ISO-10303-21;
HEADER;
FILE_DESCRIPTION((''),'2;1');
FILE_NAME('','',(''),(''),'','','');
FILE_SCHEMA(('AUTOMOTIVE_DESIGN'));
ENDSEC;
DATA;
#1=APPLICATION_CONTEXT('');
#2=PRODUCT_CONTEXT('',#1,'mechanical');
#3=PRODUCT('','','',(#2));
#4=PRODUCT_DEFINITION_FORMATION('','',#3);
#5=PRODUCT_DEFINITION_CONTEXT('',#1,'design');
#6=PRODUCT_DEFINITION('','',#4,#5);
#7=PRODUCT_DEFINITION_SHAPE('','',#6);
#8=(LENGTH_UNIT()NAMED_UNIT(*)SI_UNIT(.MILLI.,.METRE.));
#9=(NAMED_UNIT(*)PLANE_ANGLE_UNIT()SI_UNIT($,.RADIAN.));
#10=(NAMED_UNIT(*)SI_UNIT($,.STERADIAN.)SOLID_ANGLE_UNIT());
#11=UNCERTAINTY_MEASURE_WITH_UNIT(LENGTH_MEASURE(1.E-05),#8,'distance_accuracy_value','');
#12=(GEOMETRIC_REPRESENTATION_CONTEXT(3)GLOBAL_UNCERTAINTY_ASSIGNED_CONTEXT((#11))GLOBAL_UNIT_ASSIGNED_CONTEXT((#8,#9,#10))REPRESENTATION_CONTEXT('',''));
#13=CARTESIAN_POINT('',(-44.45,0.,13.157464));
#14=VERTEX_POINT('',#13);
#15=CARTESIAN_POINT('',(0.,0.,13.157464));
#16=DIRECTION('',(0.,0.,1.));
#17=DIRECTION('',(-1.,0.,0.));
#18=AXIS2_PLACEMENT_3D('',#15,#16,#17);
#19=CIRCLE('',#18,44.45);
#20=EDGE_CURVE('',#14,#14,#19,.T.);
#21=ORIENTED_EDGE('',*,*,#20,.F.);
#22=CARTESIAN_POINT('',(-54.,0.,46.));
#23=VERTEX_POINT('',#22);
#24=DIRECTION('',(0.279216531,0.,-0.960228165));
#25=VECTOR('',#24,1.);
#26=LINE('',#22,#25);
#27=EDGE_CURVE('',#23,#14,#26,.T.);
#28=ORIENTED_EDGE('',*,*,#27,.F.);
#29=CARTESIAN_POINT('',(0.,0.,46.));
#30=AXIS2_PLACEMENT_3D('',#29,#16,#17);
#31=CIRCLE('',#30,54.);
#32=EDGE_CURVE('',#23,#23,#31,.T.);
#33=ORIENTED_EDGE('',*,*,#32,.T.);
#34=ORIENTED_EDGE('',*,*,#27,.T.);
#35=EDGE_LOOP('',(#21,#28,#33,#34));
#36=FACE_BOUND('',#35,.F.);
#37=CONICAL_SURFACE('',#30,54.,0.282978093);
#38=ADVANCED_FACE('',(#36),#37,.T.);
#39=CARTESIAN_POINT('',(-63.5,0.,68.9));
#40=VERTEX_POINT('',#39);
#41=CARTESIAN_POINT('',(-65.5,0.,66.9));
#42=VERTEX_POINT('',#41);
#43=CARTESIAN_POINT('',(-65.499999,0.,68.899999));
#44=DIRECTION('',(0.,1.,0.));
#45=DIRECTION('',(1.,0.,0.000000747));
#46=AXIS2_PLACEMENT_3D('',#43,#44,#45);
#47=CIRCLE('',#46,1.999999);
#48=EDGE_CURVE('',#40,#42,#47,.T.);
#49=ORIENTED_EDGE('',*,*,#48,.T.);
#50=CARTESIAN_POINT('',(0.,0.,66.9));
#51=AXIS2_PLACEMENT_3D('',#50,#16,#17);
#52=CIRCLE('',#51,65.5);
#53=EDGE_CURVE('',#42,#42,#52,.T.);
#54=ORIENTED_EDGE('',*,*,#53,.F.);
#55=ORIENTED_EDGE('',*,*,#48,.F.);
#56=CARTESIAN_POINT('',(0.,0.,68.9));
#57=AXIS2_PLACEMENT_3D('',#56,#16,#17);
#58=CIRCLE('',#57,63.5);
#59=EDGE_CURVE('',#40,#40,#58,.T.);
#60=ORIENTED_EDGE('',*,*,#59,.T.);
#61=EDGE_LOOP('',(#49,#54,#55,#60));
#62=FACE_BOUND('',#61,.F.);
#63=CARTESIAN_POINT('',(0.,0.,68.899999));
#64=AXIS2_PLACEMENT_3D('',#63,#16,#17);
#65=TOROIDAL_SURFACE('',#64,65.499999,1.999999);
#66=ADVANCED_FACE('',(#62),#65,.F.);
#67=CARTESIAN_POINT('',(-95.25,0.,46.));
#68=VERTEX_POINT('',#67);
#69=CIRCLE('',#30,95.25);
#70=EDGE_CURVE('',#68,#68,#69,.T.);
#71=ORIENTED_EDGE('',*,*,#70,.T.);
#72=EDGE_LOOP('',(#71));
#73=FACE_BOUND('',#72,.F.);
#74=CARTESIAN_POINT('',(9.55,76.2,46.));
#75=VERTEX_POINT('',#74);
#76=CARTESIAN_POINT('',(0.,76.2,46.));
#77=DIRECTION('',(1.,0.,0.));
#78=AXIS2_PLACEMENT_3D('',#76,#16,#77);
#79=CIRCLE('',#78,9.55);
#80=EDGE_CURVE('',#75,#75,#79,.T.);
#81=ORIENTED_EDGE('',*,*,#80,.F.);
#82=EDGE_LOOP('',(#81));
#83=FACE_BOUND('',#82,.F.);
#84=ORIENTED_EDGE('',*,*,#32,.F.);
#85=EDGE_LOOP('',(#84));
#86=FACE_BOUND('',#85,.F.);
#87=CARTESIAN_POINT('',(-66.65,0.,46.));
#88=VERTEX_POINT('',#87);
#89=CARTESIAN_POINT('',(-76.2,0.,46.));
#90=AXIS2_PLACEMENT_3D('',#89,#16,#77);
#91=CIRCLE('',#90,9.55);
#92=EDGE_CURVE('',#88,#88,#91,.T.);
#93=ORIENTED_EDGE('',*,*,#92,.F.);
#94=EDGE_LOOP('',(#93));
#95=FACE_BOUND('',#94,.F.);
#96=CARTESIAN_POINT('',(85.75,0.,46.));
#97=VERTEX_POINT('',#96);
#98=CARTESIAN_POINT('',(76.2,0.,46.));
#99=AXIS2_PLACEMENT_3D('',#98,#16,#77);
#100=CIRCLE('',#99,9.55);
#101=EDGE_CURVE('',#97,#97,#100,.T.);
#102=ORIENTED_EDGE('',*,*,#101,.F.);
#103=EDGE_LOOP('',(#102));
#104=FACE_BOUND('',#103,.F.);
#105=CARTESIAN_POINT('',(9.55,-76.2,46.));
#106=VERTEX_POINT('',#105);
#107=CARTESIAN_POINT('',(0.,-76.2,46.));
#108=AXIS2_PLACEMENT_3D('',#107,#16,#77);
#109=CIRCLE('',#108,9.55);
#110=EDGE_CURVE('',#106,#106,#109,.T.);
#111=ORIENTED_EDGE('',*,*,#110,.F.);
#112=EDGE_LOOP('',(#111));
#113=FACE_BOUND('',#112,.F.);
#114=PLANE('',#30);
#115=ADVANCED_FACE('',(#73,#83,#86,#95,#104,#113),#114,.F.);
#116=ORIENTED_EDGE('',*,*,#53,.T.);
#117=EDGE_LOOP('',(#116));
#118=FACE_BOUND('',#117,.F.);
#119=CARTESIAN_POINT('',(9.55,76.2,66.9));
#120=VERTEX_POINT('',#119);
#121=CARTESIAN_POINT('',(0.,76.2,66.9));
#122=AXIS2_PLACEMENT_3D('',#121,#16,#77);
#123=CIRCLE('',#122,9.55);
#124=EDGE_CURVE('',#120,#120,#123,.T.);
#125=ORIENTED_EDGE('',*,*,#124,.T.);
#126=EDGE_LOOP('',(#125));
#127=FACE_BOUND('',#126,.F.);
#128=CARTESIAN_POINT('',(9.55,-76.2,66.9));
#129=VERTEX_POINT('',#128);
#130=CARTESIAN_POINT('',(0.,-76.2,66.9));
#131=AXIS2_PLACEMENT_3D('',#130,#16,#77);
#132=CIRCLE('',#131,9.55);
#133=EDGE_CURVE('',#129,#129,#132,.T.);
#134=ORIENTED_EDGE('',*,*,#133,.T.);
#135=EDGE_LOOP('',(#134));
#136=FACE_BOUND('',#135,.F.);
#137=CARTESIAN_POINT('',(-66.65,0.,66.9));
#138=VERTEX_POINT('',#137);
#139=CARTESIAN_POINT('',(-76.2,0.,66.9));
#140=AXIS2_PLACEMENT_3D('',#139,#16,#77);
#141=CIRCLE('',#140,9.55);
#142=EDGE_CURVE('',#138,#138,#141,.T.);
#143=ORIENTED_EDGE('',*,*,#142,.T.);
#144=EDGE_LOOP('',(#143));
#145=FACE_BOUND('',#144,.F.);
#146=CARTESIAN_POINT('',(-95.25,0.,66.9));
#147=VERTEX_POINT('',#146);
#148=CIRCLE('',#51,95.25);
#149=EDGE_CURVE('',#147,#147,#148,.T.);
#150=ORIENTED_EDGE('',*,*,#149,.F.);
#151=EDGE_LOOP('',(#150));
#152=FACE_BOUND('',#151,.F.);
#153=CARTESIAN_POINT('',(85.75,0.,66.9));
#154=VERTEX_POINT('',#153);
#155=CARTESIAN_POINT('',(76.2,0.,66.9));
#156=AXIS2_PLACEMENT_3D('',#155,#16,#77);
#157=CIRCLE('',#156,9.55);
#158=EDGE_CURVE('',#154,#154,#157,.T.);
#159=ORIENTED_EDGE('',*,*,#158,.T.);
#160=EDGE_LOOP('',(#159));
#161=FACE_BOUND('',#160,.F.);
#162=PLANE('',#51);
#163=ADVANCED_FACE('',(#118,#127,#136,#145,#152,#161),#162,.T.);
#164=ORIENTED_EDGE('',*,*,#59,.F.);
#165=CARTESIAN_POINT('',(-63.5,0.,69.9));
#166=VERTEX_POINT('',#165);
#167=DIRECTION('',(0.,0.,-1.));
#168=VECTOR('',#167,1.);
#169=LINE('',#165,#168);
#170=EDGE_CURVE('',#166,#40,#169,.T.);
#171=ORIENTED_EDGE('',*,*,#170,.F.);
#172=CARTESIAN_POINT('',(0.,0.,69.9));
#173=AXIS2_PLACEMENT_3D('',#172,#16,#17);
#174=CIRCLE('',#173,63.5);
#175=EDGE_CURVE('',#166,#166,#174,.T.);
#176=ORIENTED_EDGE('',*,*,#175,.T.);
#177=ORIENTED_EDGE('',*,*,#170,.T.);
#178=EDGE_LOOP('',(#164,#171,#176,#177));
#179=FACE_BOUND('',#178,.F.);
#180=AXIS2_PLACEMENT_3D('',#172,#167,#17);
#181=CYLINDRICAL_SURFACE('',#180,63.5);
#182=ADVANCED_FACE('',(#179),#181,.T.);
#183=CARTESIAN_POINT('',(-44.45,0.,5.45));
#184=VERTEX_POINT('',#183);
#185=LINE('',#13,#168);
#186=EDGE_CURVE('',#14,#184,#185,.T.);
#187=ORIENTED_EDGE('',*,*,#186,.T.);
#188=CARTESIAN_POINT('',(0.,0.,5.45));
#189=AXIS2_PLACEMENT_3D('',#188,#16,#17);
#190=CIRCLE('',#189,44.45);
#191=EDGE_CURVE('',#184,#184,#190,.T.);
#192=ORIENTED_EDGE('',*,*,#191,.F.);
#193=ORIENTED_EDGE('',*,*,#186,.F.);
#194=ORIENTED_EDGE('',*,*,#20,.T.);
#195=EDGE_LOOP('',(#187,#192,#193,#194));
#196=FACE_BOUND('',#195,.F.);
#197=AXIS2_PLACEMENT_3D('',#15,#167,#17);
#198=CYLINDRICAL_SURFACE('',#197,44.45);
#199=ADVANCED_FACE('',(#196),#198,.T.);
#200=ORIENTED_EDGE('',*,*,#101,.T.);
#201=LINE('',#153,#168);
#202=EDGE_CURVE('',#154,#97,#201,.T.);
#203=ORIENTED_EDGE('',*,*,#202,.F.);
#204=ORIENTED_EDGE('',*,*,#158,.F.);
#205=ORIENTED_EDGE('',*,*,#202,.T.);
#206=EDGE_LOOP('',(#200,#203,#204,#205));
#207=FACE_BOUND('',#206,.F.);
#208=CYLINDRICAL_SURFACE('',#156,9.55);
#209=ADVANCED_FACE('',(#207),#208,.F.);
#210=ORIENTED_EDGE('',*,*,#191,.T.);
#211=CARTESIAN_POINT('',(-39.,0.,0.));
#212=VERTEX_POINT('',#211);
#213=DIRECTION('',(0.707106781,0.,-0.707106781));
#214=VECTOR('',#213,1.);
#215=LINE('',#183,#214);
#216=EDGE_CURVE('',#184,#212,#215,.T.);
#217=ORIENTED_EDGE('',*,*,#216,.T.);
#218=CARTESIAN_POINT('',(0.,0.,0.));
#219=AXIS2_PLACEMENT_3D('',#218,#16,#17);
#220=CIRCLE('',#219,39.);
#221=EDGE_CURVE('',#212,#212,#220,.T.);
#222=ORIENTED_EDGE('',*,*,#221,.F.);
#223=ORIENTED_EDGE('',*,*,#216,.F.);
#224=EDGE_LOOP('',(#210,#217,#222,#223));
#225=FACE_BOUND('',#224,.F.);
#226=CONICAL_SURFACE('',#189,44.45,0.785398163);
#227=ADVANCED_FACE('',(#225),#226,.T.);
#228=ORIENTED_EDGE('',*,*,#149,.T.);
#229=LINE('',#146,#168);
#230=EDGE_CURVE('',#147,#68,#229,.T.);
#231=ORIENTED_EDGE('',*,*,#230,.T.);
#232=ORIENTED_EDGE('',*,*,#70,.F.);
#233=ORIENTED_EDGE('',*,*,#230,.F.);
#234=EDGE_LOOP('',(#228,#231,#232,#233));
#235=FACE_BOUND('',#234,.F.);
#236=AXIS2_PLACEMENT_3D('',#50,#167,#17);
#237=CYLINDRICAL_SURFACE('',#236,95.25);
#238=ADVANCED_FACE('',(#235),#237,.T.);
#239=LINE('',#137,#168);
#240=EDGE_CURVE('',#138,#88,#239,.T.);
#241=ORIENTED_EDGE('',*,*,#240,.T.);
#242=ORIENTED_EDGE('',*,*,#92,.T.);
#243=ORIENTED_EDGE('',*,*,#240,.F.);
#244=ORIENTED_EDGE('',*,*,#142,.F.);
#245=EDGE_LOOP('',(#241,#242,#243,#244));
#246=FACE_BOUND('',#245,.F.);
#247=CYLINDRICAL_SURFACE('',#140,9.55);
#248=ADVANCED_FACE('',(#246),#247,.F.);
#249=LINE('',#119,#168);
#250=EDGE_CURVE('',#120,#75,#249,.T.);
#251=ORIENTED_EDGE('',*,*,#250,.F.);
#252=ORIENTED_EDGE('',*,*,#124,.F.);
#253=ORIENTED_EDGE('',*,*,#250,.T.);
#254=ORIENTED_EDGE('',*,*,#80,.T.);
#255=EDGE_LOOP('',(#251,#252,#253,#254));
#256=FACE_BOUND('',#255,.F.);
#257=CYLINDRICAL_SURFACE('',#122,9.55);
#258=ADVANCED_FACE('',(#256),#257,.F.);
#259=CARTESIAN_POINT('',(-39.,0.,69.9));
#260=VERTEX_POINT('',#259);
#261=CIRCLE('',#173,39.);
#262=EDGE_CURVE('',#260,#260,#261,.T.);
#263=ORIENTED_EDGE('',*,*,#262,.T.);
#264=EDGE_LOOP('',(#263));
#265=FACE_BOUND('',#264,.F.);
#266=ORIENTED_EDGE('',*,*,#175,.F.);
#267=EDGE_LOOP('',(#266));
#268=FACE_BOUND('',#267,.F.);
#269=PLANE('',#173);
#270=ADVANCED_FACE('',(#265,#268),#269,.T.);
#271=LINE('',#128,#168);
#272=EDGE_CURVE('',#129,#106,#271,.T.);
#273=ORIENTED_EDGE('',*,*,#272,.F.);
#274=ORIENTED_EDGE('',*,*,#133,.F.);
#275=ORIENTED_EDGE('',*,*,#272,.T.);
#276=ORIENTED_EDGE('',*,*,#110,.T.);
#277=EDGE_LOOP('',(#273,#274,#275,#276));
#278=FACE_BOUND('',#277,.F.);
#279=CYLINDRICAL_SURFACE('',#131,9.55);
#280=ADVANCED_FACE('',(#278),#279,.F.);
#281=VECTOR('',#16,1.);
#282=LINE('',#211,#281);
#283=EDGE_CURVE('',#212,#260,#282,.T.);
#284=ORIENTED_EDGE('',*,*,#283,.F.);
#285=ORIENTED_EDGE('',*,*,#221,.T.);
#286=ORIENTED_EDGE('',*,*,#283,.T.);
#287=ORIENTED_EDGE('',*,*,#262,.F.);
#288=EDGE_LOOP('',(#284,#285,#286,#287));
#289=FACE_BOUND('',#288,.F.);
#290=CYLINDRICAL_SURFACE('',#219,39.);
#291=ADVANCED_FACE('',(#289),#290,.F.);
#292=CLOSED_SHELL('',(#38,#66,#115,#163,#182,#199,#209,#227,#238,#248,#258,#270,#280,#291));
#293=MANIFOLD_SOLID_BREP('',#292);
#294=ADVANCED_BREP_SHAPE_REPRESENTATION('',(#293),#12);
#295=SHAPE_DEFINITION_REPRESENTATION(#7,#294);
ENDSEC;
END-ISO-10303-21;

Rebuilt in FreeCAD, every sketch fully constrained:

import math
import FreeCAD as App
import Part
import Sketcher
from FreeCAD import Vector
Q = App.Units.Quantity

doc = App.newDocument("Part")
body = doc.addObject("PartDesign::Body", "Body")

sketch1 = doc.addObject("Sketcher::SketchObject", "Sketch")
body.addObject(sketch1)
sketch1.AttachmentSupport = (doc.XZ_Plane, [""])
sketch1.MapMode = "FlatFace"
sketch1.addGeometry([
    Part.LineSegment(Vector(-44.45, 5.45, 0), Vector(-39, 0, 0)),
    Part.LineSegment(Vector(-39, 0, 0), Vector(-39, 69.9, 0)),
    Part.LineSegment(Vector(-39, 69.9, 0), Vector(-63.5, 69.9, 0)),
    Part.LineSegment(Vector(-63.5, 69.9, 0), Vector(-63.5, 68.9, 0)),
    Part.ArcOfCircle(Part.Circle(Vector(-65.499999, 68.899999, 0), Vector(0, 0, 1), 1.999999), math.radians(-90.000043), math.radians(0.000043)),
    Part.LineSegment(Vector(-65.5, 66.9, 0), Vector(-95.25, 66.9, 0)),
    Part.LineSegment(Vector(-95.25, 66.9, 0), Vector(-95.25, 46, 0)),
    Part.LineSegment(Vector(-95.25, 46, 0), Vector(-54, 46, 0)),
    Part.LineSegment(Vector(-54, 46, 0), Vector(-44.45, 13.157464, 0)),
    Part.LineSegment(Vector(-44.45, 13.157464, 0), Vector(-44.45, 5.45, 0)),
], False)
sketch1.addConstraint([
    Sketcher.Constraint("Coincident", 0, 2, 1, 1),
    Sketcher.Constraint("Coincident", 1, 2, 2, 1),
    Sketcher.Constraint("Coincident", 2, 2, 3, 1),
    Sketcher.Constraint("Tangent", 3, 2, 4, 2),
    Sketcher.Constraint("Tangent", 4, 1, 5, 1),
    Sketcher.Constraint("Coincident", 5, 2, 6, 1),
    Sketcher.Constraint("Coincident", 6, 2, 7, 1),
    Sketcher.Constraint("Coincident", 7, 2, 8, 1),
    Sketcher.Constraint("Coincident", 8, 2, 9, 1),
    Sketcher.Constraint("Coincident", 9, 2, 0, 1),
    Sketcher.Constraint("Vertical", 1),
    Sketcher.Constraint("Horizontal", 2),
    Sketcher.Constraint("Vertical", 3),
    Sketcher.Constraint("Horizontal", 5),
    Sketcher.Constraint("Vertical", 6),
    Sketcher.Constraint("Horizontal", 7),
    Sketcher.Constraint("Vertical", 9),
    Sketcher.Constraint("PointOnObject", 0, 2, -1),
    Sketcher.Constraint("Radius", 4, 1.999999),
    Sketcher.Constraint("DistanceY", 3, 2, 3, 1, 1.0),
    Sketcher.Constraint("Angle", 0, Q("-45 deg")),
    Sketcher.Constraint("DistanceX", 2, 2, 2, 1, 24.5),
    Sketcher.Constraint("DistanceY", 1, 1, 1, 2, 69.9),
    Sketcher.Constraint("DistanceY", 6, 2, 6, 1, 20.9),
    Sketcher.Constraint("DistanceX", 0, 2, -1, 1, 39.0),
    Sketcher.Constraint("DistanceX", 7, 2, -1, 1, 54.0),
    Sketcher.Constraint("DistanceX", 5, 2, 5, 1, 29.75),
    Sketcher.Constraint("DistanceX", 8, 2, -1, 1, 44.45),
    Sketcher.Constraint("DistanceY", 9, 2, 9, 1, 7.707464),
])
revolution = doc.addObject("PartDesign::Revolution", "Revolution")
body.addObject(revolution)
revolution.Profile = sketch1
revolution.ReferenceAxis = (sketch1, ["V_Axis"])
revolution.Angle = 360

sketch2 = doc.addObject("Sketcher::SketchObject", "Sketch001")
body.addObject(sketch2)
sketch2.AttachmentSupport = (doc.XY_Plane, [""])
sketch2.MapMode = "FlatFace"
sketch2.AttachmentOffset = App.Placement(Vector(0, 0, 66.9), App.Rotation())
sketch2.addGeometry([
    Part.Circle(Vector(-76.2, 0, 0), Vector(0, 0, 1), 9.55),
    Part.Circle(Vector(0, -76.2, 0), Vector(0, 0, 1), 9.55),
    Part.Circle(Vector(76.2, 0, 0), Vector(0, 0, 1), 9.55),
    Part.Circle(Vector(0, 76.2, 0), Vector(0, 0, 1), 9.55),
], False)
sketch2.addConstraint([
    Sketcher.Constraint("Equal", 0, 1),
    Sketcher.Constraint("Equal", 1, 2),
    Sketcher.Constraint("Equal", 2, 3),
    Sketcher.Constraint("Symmetric", 0, 3, 2, 3, -1, 1),
    Sketcher.Constraint("Symmetric", 1, 3, 3, 3, -1, 1),
    Sketcher.Constraint("PointOnObject", 0, 3, -1),
    Sketcher.Constraint("PointOnObject", 1, 3, -2),
    Sketcher.Constraint("Diameter", 0, 19.1),
    Sketcher.Constraint("DistanceX", 0, 3, -1, 1, 76.2),
    Sketcher.Constraint("DistanceY", 1, 3, -1, 1, 76.2),
])
pocket1 = doc.addObject("PartDesign::Pocket", "Pocket")
body.addObject(pocket1)
pocket1.Profile = sketch2
pocket1.Type = "ThroughAll"

doc.recompute()
